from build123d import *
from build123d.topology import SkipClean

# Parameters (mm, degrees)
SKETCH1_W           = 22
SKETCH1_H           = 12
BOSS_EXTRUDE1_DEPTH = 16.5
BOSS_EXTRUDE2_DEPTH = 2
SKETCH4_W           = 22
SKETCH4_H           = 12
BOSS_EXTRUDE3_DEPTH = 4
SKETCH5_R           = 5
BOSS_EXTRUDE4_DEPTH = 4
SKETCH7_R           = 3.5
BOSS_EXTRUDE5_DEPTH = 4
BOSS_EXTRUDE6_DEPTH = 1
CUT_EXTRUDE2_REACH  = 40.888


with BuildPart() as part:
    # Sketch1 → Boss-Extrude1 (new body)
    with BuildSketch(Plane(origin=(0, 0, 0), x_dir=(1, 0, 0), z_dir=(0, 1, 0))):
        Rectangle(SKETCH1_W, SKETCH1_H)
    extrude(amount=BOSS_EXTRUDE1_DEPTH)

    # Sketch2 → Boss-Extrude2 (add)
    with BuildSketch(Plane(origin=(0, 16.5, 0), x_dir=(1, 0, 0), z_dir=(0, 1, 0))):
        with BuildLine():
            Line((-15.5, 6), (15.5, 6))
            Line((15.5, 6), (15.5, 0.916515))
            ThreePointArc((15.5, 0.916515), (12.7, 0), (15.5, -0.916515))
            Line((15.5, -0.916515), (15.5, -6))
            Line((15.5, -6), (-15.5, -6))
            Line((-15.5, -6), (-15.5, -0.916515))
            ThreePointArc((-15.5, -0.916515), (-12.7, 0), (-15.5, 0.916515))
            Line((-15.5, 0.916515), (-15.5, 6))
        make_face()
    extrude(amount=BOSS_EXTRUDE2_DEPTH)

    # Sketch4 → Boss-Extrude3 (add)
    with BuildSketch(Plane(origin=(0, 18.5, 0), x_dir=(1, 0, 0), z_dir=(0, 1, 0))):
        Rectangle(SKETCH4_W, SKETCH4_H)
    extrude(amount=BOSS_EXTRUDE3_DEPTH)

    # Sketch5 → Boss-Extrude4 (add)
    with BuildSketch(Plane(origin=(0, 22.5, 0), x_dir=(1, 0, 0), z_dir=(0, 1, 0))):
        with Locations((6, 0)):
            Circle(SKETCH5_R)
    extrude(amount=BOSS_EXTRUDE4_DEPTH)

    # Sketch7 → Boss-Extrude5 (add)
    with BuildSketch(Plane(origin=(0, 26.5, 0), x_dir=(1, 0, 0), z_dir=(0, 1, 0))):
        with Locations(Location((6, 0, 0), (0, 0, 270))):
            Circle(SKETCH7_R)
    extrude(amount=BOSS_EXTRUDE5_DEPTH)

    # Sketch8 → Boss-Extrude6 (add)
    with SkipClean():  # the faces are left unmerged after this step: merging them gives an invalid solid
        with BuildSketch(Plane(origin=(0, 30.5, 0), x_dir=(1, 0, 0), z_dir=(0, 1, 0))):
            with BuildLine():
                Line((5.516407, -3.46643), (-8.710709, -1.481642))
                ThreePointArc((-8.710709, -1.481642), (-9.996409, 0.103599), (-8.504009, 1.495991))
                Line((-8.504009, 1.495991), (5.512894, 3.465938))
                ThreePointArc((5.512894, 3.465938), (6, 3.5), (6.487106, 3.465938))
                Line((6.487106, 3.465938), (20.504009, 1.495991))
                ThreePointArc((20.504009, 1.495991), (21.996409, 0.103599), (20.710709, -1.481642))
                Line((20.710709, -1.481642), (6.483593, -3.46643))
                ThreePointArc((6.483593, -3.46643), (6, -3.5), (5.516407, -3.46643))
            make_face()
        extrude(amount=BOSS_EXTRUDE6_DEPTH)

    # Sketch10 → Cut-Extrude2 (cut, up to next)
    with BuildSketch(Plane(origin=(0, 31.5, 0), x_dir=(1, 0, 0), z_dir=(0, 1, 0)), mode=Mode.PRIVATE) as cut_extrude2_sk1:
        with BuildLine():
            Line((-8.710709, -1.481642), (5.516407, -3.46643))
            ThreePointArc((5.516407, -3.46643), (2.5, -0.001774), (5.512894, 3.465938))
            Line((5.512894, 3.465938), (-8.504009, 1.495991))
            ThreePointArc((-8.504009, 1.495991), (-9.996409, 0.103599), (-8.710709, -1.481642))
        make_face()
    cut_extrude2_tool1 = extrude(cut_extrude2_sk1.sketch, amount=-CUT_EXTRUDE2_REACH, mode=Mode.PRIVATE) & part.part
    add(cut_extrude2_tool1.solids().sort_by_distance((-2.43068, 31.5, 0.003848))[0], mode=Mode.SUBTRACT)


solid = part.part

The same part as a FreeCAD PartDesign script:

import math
import FreeCAD as App
import Part
import Sketcher
Q = App.Units.Quantity


def add_polygon(sketch, points):
    """Adds a closed chain of lines whose ends are joined by coincident constraints."""
    first, n = sketch.GeometryCount, len(points)
    for a, b in zip(points, points[1:] + points[:1]):
        sketch.addGeometry(Part.LineSegment(App.Vector(*a, 0), App.Vector(*b, 0)), False)
    for i in range(n):
        sketch.addConstraint(Sketcher.Constraint("Coincident", first + i, 2, first + (i + 1) % n, 1))

doc = App.newDocument("Part")
params = doc.addObject("Spreadsheet::Sheet", "Params")
for row, (alias, value) in enumerate([
    ("sketch1_width", "22 mm"),
    ("sketch1_height", "12 mm"),
    ("pad1_length", "16.5 mm"),
    ("sketch2_width", "31 mm"),
    ("sketch2_radius", "1.55 mm"),
    ("pad2_length", "2 mm"),
    ("sketch3_width", "22 mm"),
    ("sketch3_height", "12 mm"),
    ("pad3_length", "4 mm"),
    ("sketch4_diameter", "10 mm"),
    ("pad4_length", "4 mm"),
    ("sketch5_diameter", "7 mm"),
    ("pad5_length", "4 mm"),
    ("pad6_length", "1 mm"),
    ("sketch7_radius", "3.5 mm"),
], start=1):
    params.set(f"A{row}", alias)
    params.set(f"B{row}", "=" + value)
    params.setAlias(f"B{row}", alias)

body = doc.addObject("PartDesign::Body", "Body")

# Sketch on XZ plane
sketch1 = body.newObject("Sketcher::SketchObject", "Sketch")
sketch1.AttachmentSupport = (doc.getObject("XZ_Plane"), [""])
sketch1.MapMode = "FlatFace"
add_polygon(sketch1, [(-11, -6), (-11, 6), (11, 6), (11, -6)])  # lines 0-3
sketch1.addConstraint([
    Sketcher.Constraint("Vertical", 0),
    Sketcher.Constraint("Horizontal", 1),
    Sketcher.Constraint("Vertical", 2),
    Sketcher.Constraint("Horizontal", 3),
    Sketcher.Constraint("Symmetric", 0, 2, 2, 2, -1, 1),
    Sketcher.Constraint("DistanceX", 1, 1, 1, 2, 22.0),
    Sketcher.Constraint("DistanceY", 0, 1, 0, 2, 12.0),
])
sketch1.setExpression("Constraints[9]", "Params.sketch1_width")
sketch1.setExpression("Constraints[10]", "Params.sketch1_height")
pad1 = body.newObject("PartDesign::Pad", "Pad")
pad1.Profile = sketch1
pad1.setExpression("Length", "Params.pad1_length")
pad1.Reversed = True

# Sketch on XZ plane
sketch2 = body.newObject("Sketcher::SketchObject", "Sketch001")
sketch2.AttachmentSupport = (doc.getObject("XZ_Plane"), [""])
sketch2.MapMode = "FlatFace"
sketch2.AttachmentOffset = App.Placement(App.Vector(0, 0, -16.5), App.Rotation())
sketch2.addGeometry([
    Part.LineSegment(App.Vector(15.5, -6, 0), App.Vector(-15.5, -6, 0)),  # 0
    Part.LineSegment(App.Vector(-15.5, -6, 0), App.Vector(-15.5, -0.9, 0)),  # 1
    Part.ArcOfCircle(Part.Circle(App.Vector(-14.2, 0, 0), App.Vector(0, 0, 1), 1.5), math.radians(-144), math.radians(144)),  # 2
    Part.LineSegment(App.Vector(-15.5, 0.9, 0), App.Vector(-15.5, 6, 0)),  # 3
    Part.LineSegment(App.Vector(-15.5, 6, 0), App.Vector(15.5, 6, 0)),  # 4
    Part.LineSegment(App.Vector(15.5, 6, 0), App.Vector(15.5, 0.9, 0)),  # 5
    Part.ArcOfCircle(Part.Circle(App.Vector(14.2, 0, 0), App.Vector(0, 0, 1), 1.5), math.radians(36), math.radians(324)),  # 6
    Part.LineSegment(App.Vector(15.5, -0.9, 0), App.Vector(15.5, -6, 0)),  # 7
], False)
sketch2.addConstraint([
    Sketcher.Constraint("Coincident", 0, 2, 1, 1),
    Sketcher.Constraint("Coincident", 1, 2, 2, 1),
    Sketcher.Constraint("Coincident", 2, 2, 3, 1),
    Sketcher.Constraint("Coincident", 3, 2, 4, 1),
    Sketcher.Constraint("Coincident", 4, 2, 5, 1),
    Sketcher.Constraint("Coincident", 5, 2, 6, 1),
    Sketcher.Constraint("Coincident", 6, 2, 7, 1),
    Sketcher.Constraint("Coincident", 7, 2, 0, 1),
    Sketcher.Constraint("Horizontal", 0),
    Sketcher.Constraint("Vertical", 1),
    Sketcher.Constraint("Vertical", 3),
    Sketcher.Constraint("Horizontal", 4),
    Sketcher.Constraint("Vertical", 5),
    Sketcher.Constraint("Vertical", 7),
    Sketcher.Constraint("Equal", 2, 6),
    Sketcher.Constraint("Symmetric", 2, 3, 6, 3, -1, 1),
    Sketcher.Constraint("Symmetric", 0, 2, 4, 2, -1, 1),
    Sketcher.Constraint("Symmetric", 2, 2, 5, 2, -2),
    Sketcher.Constraint("Horizontal", 1, 2, 6, 2),
    Sketcher.Constraint("DistanceX", 0, 2, 0, 1, 31.0),
    Sketcher.Constraint("Radius", 2, 1.55),
    Sketcher.Constraint("DistanceY", 0, 2, -1, 1, 6.0),
    Sketcher.Constraint("DistanceX", 2, 3, 6, 3, 28.5),
])
sketch2.setExpression("Constraints[19]", "Params.sketch2_width")
sketch2.setExpression("Constraints[20]", "Params.sketch2_radius")
pad2 = body.newObject("PartDesign::Pad", "Pad001")
pad2.Profile = sketch2
pad2.setExpression("Length", "Params.pad2_length")
pad2.Reversed = True

# Sketch on XZ plane
sketch3 = body.newObject("Sketcher::SketchObject", "Sketch002")
sketch3.AttachmentSupport = (doc.getObject("XZ_Plane"), [""])
sketch3.MapMode = "FlatFace"
sketch3.AttachmentOffset = App.Placement(App.Vector(0, 0, -18.5), App.Rotation())
add_polygon(sketch3, [(-11, -6), (-11, 6), (11, 6), (11, -6)])  # lines 0-3
sketch3.addConstraint([
    Sketcher.Constraint("Vertical", 0),
    Sketcher.Constraint("Horizontal", 1),
    Sketcher.Constraint("Vertical", 2),
    Sketcher.Constraint("Horizontal", 3),
    Sketcher.Constraint("Symmetric", 0, 2, 2, 2, -1, 1),
    Sketcher.Constraint("DistanceX", 1, 1, 1, 2, 22.0),
    Sketcher.Constraint("DistanceY", 0, 1, 0, 2, 12.0),
])
sketch3.setExpression("Constraints[9]", "Params.sketch3_width")
sketch3.setExpression("Constraints[10]", "Params.sketch3_height")
pad3 = body.newObject("PartDesign::Pad", "Pad002")
pad3.Profile = sketch3
pad3.setExpression("Length", "Params.pad3_length")
pad3.Reversed = True

# Sketch on XZ plane
sketch4 = body.newObject("Sketcher::SketchObject", "Sketch003")
sketch4.AttachmentSupport = (doc.getObject("XZ_Plane"), [""])
sketch4.MapMode = "FlatFace"
sketch4.AttachmentOffset = App.Placement(App.Vector(0, 0, -22.5), App.Rotation())
sketch4.addGeometry(Part.Circle(App.Vector(6, 0, 0), App.Vector(0, 0, 1), 5), False)
sketch4.addConstraint([
    Sketcher.Constraint("PointOnObject", 0, 3, -1),
    Sketcher.Constraint("Diameter", 0, 10.0),
    Sketcher.Constraint("DistanceX", -1, 1, 0, 3, 6.0),
])
sketch4.setExpression("Constraints[1]", "Params.sketch4_diameter")
pad4 = body.newObject("PartDesign::Pad", "Pad003")
pad4.Profile = sketch4
pad4.setExpression("Length", "Params.pad4_length")
pad4.Reversed = True

# Sketch on XZ plane
sketch5 = body.newObject("Sketcher::SketchObject", "Sketch004")
sketch5.AttachmentSupport = (doc.getObject("XZ_Plane"), [""])
sketch5.MapMode = "FlatFace"
sketch5.AttachmentOffset = App.Placement(App.Vector(0, 0, -26.5), App.Rotation())
sketch5.addGeometry(Part.Circle(App.Vector(6, 0, 0), App.Vector(0, 0, 1), 3.5), False)
sketch5.addConstraint([
    Sketcher.Constraint("PointOnObject", 0, 3, -1),
    Sketcher.Constraint("Diameter", 0, 7.0),
    Sketcher.Constraint("DistanceX", -1, 1, 0, 3, 6.0),
])
sketch5.setExpression("Constraints[1]", "Params.sketch5_diameter")
pad5 = body.newObject("PartDesign::Pad", "Pad004")
pad5.Profile = sketch5
pad5.setExpression("Length", "Params.pad5_length")
pad5.Reversed = True

# Sketch on XZ plane
sketch6 = body.newObject("Sketcher::SketchObject", "Sketch005")
sketch6.AttachmentSupport = (doc.getObject("XZ_Plane"), [""])
sketch6.MapMode = "FlatFace"
sketch6.AttachmentOffset = App.Placement(App.Vector(0, 0, -30.5), App.Rotation())
sketch6.addGeometry([
    Part.LineSegment(App.Vector(-8.710709, 1.481642, 0), App.Vector(5.516407, 3.46643, 0)),  # 0
    Part.ArcOfCircle(Part.Circle(App.Vector(6, 0.000013, 0), App.Vector(0, 0, 1), 3.499987), math.radians(82.058038), math.radians(97.941962)),  # 1
    Part.LineSegment(App.Vector(6.483593, 3.46643, 0), App.Vector(20.710709, 1.481642, 0)),  # 2
    Part.ArcOfCircle(Part.Circle(App.Vector(20.50401, 0, 0), App.Vector(0, 0, 1), 1.495991), math.radians(-90.000027), math.radians(82.058102)),  # 3
    Part.LineSegment(App.Vector(20.504009, -1.495991, 0), App.Vector(6.487106, -3.465938, 0)),  # 4
    Part.ArcOfCircle(Part.Circle(App.Vector(6, -0.000022, 0), App.Vector(0, 0, 1), 3.499978), math.radians(-98.000054), math.radians(-81.999946)),  # 5
    Part.LineSegment(App.Vector(5.512894, -3.465938, 0), App.Vector(-8.504009, -1.495991, 0)),  # 6
    Part.ArcOfCircle(Part.Circle(App.Vector(-8.50401, 0, 0), App.Vector(0, 0, 1), 1.495991), math.radians(97.941898), math.radians(270.000027)),  # 7
], False)
sketch6.addConstraint([
    Sketcher.Constraint("Tangent", 0, 2, 1, 2),
    Sketcher.Constraint("Tangent", 1, 1, 2, 1),
    Sketcher.Constraint("Tangent", 2, 2, 3, 2),
    Sketcher.Constraint("Coincident", 3, 1, 4, 1),
    Sketcher.Constraint("Tangent", 4, 2, 5, 2),
    Sketcher.Constraint("Tangent", 5, 1, 6, 1),
    Sketcher.Constraint("Coincident", 6, 2, 7, 2),
    Sketcher.Constraint("Tangent", 7, 1, 0, 1),
    Sketcher.Constraint("Equal", 3, 7),
    Sketcher.Constraint("Symmetric", 1, 3, 5, 3, -1),
    Sketcher.Constraint("PointOnObject", 3, 3, -1),
    Sketcher.Constraint("PointOnObject", 7, 3, -1),
    Sketcher.Constraint("Horizontal", 0, 2, 1, 1),
    Sketcher.Constraint("Horizontal", 4, 2, 5, 1),
    Sketcher.Constraint("Vertical", 7, 3, 6, 2),
    Sketcher.Constraint("Angle", 4, Q("-172.000001 deg")),
    Sketcher.Constraint("DistanceX", -1, 1, 1, 3, 6.0),
    Sketcher.Constraint("Radius", 3, 1.495991),
    Sketcher.Constraint("Radius", 1, 3.499987),
    Sketcher.Constraint("Radius", 5, 3.499978),
    Sketcher.Constraint("DistanceX", -1, 1, 3, 3, 20.50401),
])
pad6 = body.newObject("PartDesign::Pad", "Pad005")
pad6.Profile = sketch6
pad6.setExpression("Length", "Params.pad6_length")
pad6.Reversed = True

# Sketch on XZ plane
sketch7 = body.newObject("Sketcher::SketchObject", "Sketch006")
sketch7.AttachmentSupport = (doc.getObject("XZ_Plane"), [""])
sketch7.MapMode = "FlatFace"
sketch7.AttachmentOffset = App.Placement(App.Vector(0, 0, -31.5), App.Rotation())
sketch7.addGeometry([
    Part.LineSegment(App.Vector(-8.7, 1.5, 0), App.Vector(5.5, 3.5, 0)),
    Part.ArcOfCircle(Part.Circle(App.Vector(6, 0, 0), App.Vector(0, 0, 1), 3.5), math.radians(98), math.radians(262)),
    Part.LineSegment(App.Vector(5.5, -3.5, 0), App.Vector(-8.5, -1.5, 0)),
    Part.ArcOfCircle(Part.Circle(App.Vector(-8.5, 0, 0), App.Vector(0, 0, 1), 1.5), math.radians(98), math.radians(270)),
], False)
sketch7.addConstraint([
    Sketcher.Constraint("Tangent", 0, 2, 1, 1),
    Sketcher.Constraint("Tangent", 1, 2, 2, 1),
    Sketcher.Constraint("Coincident", 2, 2, 3, 2),
    Sketcher.Constraint("Tangent", 3, 1, 0, 1),
    Sketcher.Constraint("PointOnObject", 1, 3, -1),
    Sketcher.Constraint("PointOnObject", 3, 3, -1),
    Sketcher.Constraint("Vertical", 3, 3, 2, 2),
    Sketcher.Constraint("Radius", 1, 3.5),
    Sketcher.Constraint("Angle", 2, Q("172.000001 deg")),
    Sketcher.Constraint("DistanceX", -1, 1, 1, 3, 5.999999),
    Sketcher.Constraint("Radius", 3, 1.495991),
])
sketch7.setExpression("Constraints[7]", "Params.sketch7_radius")
pocket1 = body.newObject("PartDesign::Pocket", "Pocket")
pocket1.Profile = sketch7
pocket1.Type = "UpToFirst"
pocket1.Reversed = True

doc.recompute()
